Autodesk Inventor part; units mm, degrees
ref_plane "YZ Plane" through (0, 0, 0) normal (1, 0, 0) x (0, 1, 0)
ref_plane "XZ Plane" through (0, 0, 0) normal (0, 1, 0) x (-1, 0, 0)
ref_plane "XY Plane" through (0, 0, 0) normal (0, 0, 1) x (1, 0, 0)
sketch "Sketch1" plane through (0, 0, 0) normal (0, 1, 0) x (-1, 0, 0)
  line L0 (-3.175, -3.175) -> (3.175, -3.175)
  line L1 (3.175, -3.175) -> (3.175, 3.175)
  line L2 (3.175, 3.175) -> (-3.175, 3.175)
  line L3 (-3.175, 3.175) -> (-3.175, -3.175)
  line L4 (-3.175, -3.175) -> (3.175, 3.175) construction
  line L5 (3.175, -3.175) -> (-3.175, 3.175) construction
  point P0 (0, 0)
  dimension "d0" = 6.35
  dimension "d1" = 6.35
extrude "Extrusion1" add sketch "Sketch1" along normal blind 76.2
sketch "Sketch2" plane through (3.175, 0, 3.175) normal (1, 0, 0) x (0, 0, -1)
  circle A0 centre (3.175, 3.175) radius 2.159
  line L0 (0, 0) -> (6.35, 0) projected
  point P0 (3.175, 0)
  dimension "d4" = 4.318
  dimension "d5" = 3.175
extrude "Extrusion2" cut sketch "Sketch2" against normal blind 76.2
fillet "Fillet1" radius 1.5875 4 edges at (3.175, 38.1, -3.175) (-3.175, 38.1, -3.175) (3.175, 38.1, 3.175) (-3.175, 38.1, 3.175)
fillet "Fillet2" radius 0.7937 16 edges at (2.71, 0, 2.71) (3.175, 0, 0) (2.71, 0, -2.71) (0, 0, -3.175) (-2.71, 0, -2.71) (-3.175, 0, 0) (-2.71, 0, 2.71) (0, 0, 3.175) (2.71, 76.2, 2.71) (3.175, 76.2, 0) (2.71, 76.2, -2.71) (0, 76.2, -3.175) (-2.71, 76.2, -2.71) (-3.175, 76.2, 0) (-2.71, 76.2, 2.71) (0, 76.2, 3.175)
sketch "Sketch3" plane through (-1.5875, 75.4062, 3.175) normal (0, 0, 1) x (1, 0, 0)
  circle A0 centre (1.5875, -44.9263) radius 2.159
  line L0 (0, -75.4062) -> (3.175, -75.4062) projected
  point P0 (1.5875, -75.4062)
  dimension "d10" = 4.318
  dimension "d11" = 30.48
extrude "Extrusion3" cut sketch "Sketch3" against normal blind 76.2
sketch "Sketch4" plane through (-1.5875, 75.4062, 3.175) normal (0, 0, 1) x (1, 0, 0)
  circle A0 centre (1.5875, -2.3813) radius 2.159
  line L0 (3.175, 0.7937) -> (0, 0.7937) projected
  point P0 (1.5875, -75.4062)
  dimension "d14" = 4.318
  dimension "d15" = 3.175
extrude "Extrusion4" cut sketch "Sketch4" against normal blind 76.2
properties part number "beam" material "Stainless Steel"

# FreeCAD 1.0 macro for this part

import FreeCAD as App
import Part
import Sketcher
Q = App.Units.Quantity


def edges_at(feature, points):
    """Names of the edges that pass closest to the given points."""
    edges = feature.Shape.Edges
    near = lambda p: min(range(len(edges)), key=lambda i: edges[i].distToShape(Part.Vertex(*p))[0])
    return sorted({f"Edge{near(p) + 1}" for p in points})


def add_polygon(sketch, points):
    """Adds a closed chain of lines whose ends are joined by coincident constraints."""
    first, n = sketch.GeometryCount, len(points)
    for a, b in zip(points, points[1:] + points[:1]):
        sketch.addGeometry(Part.LineSegment(App.Vector(*a, 0), App.Vector(*b, 0)), False)
    for i in range(n):
        sketch.addConstraint(Sketcher.Constraint("Coincident", first + i, 2, first + (i + 1) % n, 1))

doc = App.newDocument("Part")
params = doc.addObject("Spreadsheet::Sheet", "Params")
for row, (alias, value) in enumerate([
    ("sketch1_width", "0.25 in"),
    ("pad1_length", "3 in"),
    ("sketch2_diameter", "0.17 in"),
    ("pocket1_length", "3 in"),
    ("fillet_radius", "0.0625 in"),
    ("fillet2_radius", "0.031248 in"),
    ("sketch3_diameter", "0.17 in"),
    ("pocket2_length", "3 in"),
    ("sketch4_diameter", "0.17 in"),
    ("pocket3_length", "3 in"),
], start=1):
    params.set(f"A{row}", alias)
    params.set(f"B{row}", "=" + value)
    params.setAlias(f"B{row}", alias)

body = doc.addObject("PartDesign::Body", "Body")

# Sketch on XZ plane
sketch1 = doc.addObject("Sketcher::SketchObject", "Sketch")
body.addObject(sketch1)
sketch1.AttachmentSupport = (doc.XZ_Plane, [""])
sketch1.MapMode = "FlatFace"
add_polygon(sketch1, [(3.175, 3.175), (3.175, -3.175), (-3.175, -3.175), (-3.175, 3.175)])  # lines 0-3
sketch1.addConstraint(Sketcher.Constraint("Vertical", 0))
sketch1.addConstraint(Sketcher.Constraint("Horizontal", 1))
sketch1.addConstraint(Sketcher.Constraint("Vertical", 2))
sketch1.addConstraint(Sketcher.Constraint("Horizontal", 3))
sketch1.addConstraint(Sketcher.Constraint("Symmetric", 0, 2, 2, 2, -1, 1))
sketch1.addConstraint(Sketcher.Constraint("Equal", 3, 0))
sketch1.addConstraint(Sketcher.Constraint("DistanceX", 1, 2, 1, 1, Q("0.25 in")))
sketch1.setExpression("Constraints[10]", "Params.sketch1_width")
pad1 = doc.addObject("PartDesign::Pad", "Pad")
body.addObject(pad1)
pad1.Profile = sketch1
pad1.setExpression("Length", "Params.pad1_length")
pad1.Reversed = True

# Sketch on YZ plane
sketch2 = doc.addObject("Sketcher::SketchObject", "Sketch001")
body.addObject(sketch2)
sketch2.AttachmentSupport = (doc.YZ_Plane, [""])
sketch2.MapMode = "FlatFace"
sketch2.AttachmentOffset = App.Placement(App.Vector(0, 0, 0.125 * 25.4), App.Rotation())
sketch2.addGeometry(Part.Circle(App.Vector(3.175, 0, 0), App.Vector(0, 0, 1), 2.159), False)
sketch2.addConstraint(Sketcher.Constraint("PointOnObject", 0, 3, -1))
sketch2.addConstraint(Sketcher.Constraint("Diameter", 0, Q("0.17 in")))
sketch2.addConstraint(Sketcher.Constraint("DistanceX", -1, 1, 0, 3, Q("0.125 in")))
sketch2.setExpression("Constraints[1]", "Params.sketch2_diameter")
pocket1 = doc.addObject("PartDesign::Pocket", "Pocket")
body.addObject(pocket1)
pocket1.Profile = sketch2
pocket1.setExpression("Length", "Params.pocket1_length")
doc.recompute()

fillet = doc.addObject("PartDesign::Fillet", "Fillet")
body.addObject(fillet)
fillet.Base = (pocket1, edges_at(pocket1, [
    (3.175, 38.1, -3.175),
    (-3.175, 38.1, -3.175),
    (3.175, 38.1, 3.175),
    (-3.175, 38.1, 3.175),
]))
fillet.setExpression("Radius", "Params.fillet_radius")
doc.recompute()

fillet2 = doc.addObject("PartDesign::Fillet", "Fillet001")
body.addObject(fillet2)
fillet2.Base = (fillet, edges_at(fillet, [
    (2.71, 0, 2.71),
    (3.175, 0, 0),
    (2.71, 0, -2.71),
    (0, 0, -3.175),
    (-2.71, 0, -2.71),
    (-3.175, 0, 0),
    (-2.71, 0, 2.71),
    (0, 0, 3.175),
    (2.71, 76.2, 2.71),
    (3.175, 76.2, 0),
    (2.71, 76.2, -2.71),
    (0, 76.2, -3.175),
    (-2.71, 76.2, -2.71),
    (-3.175, 76.2, 0),
    (-2.71, 76.2, 2.71),
    (0, 76.2, 3.175),
]))
fillet2.setExpression("Radius", "Params.fillet2_radius")

# Sketch on XY plane
sketch3 = doc.addObject("Sketcher::SketchObject", "Sketch002")
body.addObject(sketch3)
sketch3.AttachmentSupport = (doc.XY_Plane, [""])
sketch3.MapMode = "FlatFace"
sketch3.AttachmentOffset = App.Placement(App.Vector(0, 0, 0.125 * 25.4), App.Rotation())
sketch3.addGeometry(Part.Circle(App.Vector(0, 30.4799, 0), App.Vector(0, 0, 1), 2.159), False)
sketch3.addConstraint(Sketcher.Constraint("PointOnObject", 0, 3, -2))
sketch3.addConstraint(Sketcher.Constraint("Diameter", 0, Q("0.17 in")))
sketch3.addConstraint(Sketcher.Constraint("DistanceY", -1, 1, 0, 3, Q("1.2 in")))
sketch3.setExpression("Constraints[1]", "Params.sketch3_diameter")
pocket2 = doc.addObject("PartDesign::Pocket", "Pocket001")
body.addObject(pocket2)
pocket2.Profile = sketch3
pocket2.setExpression("Length", "Params.pocket2_length")

# Sketch on XY plane
sketch4 = doc.addObject("Sketcher::SketchObject", "Sketch003")
body.addObject(sketch4)
sketch4.AttachmentSupport = (doc.XY_Plane, [""])
sketch4.MapMode = "FlatFace"
sketch4.AttachmentOffset = App.Placement(App.Vector(0, 0, 0.125 * 25.4), App.Rotation())
sketch4.addGeometry(Part.Circle(App.Vector(0, 73.0249, 0), App.Vector(0, 0, 1), 2.159), False)
sketch4.addConstraint(Sketcher.Constraint("PointOnObject", 0, 3, -2))
sketch4.addConstraint(Sketcher.Constraint("Diameter", 0, Q("0.17 in")))
sketch4.addConstraint(Sketcher.Constraint("DistanceY", -1, 1, 0, 3, Q("2.875 in")))
sketch4.setExpression("Constraints[1]", "Params.sketch4_diameter")
pocket3 = doc.addObject("PartDesign::Pocket", "Pocket002")
body.addObject(pocket3)
pocket3.Profile = sketch4
pocket3.setExpression("Length", "Params.pocket3_length")

doc.recompute()
